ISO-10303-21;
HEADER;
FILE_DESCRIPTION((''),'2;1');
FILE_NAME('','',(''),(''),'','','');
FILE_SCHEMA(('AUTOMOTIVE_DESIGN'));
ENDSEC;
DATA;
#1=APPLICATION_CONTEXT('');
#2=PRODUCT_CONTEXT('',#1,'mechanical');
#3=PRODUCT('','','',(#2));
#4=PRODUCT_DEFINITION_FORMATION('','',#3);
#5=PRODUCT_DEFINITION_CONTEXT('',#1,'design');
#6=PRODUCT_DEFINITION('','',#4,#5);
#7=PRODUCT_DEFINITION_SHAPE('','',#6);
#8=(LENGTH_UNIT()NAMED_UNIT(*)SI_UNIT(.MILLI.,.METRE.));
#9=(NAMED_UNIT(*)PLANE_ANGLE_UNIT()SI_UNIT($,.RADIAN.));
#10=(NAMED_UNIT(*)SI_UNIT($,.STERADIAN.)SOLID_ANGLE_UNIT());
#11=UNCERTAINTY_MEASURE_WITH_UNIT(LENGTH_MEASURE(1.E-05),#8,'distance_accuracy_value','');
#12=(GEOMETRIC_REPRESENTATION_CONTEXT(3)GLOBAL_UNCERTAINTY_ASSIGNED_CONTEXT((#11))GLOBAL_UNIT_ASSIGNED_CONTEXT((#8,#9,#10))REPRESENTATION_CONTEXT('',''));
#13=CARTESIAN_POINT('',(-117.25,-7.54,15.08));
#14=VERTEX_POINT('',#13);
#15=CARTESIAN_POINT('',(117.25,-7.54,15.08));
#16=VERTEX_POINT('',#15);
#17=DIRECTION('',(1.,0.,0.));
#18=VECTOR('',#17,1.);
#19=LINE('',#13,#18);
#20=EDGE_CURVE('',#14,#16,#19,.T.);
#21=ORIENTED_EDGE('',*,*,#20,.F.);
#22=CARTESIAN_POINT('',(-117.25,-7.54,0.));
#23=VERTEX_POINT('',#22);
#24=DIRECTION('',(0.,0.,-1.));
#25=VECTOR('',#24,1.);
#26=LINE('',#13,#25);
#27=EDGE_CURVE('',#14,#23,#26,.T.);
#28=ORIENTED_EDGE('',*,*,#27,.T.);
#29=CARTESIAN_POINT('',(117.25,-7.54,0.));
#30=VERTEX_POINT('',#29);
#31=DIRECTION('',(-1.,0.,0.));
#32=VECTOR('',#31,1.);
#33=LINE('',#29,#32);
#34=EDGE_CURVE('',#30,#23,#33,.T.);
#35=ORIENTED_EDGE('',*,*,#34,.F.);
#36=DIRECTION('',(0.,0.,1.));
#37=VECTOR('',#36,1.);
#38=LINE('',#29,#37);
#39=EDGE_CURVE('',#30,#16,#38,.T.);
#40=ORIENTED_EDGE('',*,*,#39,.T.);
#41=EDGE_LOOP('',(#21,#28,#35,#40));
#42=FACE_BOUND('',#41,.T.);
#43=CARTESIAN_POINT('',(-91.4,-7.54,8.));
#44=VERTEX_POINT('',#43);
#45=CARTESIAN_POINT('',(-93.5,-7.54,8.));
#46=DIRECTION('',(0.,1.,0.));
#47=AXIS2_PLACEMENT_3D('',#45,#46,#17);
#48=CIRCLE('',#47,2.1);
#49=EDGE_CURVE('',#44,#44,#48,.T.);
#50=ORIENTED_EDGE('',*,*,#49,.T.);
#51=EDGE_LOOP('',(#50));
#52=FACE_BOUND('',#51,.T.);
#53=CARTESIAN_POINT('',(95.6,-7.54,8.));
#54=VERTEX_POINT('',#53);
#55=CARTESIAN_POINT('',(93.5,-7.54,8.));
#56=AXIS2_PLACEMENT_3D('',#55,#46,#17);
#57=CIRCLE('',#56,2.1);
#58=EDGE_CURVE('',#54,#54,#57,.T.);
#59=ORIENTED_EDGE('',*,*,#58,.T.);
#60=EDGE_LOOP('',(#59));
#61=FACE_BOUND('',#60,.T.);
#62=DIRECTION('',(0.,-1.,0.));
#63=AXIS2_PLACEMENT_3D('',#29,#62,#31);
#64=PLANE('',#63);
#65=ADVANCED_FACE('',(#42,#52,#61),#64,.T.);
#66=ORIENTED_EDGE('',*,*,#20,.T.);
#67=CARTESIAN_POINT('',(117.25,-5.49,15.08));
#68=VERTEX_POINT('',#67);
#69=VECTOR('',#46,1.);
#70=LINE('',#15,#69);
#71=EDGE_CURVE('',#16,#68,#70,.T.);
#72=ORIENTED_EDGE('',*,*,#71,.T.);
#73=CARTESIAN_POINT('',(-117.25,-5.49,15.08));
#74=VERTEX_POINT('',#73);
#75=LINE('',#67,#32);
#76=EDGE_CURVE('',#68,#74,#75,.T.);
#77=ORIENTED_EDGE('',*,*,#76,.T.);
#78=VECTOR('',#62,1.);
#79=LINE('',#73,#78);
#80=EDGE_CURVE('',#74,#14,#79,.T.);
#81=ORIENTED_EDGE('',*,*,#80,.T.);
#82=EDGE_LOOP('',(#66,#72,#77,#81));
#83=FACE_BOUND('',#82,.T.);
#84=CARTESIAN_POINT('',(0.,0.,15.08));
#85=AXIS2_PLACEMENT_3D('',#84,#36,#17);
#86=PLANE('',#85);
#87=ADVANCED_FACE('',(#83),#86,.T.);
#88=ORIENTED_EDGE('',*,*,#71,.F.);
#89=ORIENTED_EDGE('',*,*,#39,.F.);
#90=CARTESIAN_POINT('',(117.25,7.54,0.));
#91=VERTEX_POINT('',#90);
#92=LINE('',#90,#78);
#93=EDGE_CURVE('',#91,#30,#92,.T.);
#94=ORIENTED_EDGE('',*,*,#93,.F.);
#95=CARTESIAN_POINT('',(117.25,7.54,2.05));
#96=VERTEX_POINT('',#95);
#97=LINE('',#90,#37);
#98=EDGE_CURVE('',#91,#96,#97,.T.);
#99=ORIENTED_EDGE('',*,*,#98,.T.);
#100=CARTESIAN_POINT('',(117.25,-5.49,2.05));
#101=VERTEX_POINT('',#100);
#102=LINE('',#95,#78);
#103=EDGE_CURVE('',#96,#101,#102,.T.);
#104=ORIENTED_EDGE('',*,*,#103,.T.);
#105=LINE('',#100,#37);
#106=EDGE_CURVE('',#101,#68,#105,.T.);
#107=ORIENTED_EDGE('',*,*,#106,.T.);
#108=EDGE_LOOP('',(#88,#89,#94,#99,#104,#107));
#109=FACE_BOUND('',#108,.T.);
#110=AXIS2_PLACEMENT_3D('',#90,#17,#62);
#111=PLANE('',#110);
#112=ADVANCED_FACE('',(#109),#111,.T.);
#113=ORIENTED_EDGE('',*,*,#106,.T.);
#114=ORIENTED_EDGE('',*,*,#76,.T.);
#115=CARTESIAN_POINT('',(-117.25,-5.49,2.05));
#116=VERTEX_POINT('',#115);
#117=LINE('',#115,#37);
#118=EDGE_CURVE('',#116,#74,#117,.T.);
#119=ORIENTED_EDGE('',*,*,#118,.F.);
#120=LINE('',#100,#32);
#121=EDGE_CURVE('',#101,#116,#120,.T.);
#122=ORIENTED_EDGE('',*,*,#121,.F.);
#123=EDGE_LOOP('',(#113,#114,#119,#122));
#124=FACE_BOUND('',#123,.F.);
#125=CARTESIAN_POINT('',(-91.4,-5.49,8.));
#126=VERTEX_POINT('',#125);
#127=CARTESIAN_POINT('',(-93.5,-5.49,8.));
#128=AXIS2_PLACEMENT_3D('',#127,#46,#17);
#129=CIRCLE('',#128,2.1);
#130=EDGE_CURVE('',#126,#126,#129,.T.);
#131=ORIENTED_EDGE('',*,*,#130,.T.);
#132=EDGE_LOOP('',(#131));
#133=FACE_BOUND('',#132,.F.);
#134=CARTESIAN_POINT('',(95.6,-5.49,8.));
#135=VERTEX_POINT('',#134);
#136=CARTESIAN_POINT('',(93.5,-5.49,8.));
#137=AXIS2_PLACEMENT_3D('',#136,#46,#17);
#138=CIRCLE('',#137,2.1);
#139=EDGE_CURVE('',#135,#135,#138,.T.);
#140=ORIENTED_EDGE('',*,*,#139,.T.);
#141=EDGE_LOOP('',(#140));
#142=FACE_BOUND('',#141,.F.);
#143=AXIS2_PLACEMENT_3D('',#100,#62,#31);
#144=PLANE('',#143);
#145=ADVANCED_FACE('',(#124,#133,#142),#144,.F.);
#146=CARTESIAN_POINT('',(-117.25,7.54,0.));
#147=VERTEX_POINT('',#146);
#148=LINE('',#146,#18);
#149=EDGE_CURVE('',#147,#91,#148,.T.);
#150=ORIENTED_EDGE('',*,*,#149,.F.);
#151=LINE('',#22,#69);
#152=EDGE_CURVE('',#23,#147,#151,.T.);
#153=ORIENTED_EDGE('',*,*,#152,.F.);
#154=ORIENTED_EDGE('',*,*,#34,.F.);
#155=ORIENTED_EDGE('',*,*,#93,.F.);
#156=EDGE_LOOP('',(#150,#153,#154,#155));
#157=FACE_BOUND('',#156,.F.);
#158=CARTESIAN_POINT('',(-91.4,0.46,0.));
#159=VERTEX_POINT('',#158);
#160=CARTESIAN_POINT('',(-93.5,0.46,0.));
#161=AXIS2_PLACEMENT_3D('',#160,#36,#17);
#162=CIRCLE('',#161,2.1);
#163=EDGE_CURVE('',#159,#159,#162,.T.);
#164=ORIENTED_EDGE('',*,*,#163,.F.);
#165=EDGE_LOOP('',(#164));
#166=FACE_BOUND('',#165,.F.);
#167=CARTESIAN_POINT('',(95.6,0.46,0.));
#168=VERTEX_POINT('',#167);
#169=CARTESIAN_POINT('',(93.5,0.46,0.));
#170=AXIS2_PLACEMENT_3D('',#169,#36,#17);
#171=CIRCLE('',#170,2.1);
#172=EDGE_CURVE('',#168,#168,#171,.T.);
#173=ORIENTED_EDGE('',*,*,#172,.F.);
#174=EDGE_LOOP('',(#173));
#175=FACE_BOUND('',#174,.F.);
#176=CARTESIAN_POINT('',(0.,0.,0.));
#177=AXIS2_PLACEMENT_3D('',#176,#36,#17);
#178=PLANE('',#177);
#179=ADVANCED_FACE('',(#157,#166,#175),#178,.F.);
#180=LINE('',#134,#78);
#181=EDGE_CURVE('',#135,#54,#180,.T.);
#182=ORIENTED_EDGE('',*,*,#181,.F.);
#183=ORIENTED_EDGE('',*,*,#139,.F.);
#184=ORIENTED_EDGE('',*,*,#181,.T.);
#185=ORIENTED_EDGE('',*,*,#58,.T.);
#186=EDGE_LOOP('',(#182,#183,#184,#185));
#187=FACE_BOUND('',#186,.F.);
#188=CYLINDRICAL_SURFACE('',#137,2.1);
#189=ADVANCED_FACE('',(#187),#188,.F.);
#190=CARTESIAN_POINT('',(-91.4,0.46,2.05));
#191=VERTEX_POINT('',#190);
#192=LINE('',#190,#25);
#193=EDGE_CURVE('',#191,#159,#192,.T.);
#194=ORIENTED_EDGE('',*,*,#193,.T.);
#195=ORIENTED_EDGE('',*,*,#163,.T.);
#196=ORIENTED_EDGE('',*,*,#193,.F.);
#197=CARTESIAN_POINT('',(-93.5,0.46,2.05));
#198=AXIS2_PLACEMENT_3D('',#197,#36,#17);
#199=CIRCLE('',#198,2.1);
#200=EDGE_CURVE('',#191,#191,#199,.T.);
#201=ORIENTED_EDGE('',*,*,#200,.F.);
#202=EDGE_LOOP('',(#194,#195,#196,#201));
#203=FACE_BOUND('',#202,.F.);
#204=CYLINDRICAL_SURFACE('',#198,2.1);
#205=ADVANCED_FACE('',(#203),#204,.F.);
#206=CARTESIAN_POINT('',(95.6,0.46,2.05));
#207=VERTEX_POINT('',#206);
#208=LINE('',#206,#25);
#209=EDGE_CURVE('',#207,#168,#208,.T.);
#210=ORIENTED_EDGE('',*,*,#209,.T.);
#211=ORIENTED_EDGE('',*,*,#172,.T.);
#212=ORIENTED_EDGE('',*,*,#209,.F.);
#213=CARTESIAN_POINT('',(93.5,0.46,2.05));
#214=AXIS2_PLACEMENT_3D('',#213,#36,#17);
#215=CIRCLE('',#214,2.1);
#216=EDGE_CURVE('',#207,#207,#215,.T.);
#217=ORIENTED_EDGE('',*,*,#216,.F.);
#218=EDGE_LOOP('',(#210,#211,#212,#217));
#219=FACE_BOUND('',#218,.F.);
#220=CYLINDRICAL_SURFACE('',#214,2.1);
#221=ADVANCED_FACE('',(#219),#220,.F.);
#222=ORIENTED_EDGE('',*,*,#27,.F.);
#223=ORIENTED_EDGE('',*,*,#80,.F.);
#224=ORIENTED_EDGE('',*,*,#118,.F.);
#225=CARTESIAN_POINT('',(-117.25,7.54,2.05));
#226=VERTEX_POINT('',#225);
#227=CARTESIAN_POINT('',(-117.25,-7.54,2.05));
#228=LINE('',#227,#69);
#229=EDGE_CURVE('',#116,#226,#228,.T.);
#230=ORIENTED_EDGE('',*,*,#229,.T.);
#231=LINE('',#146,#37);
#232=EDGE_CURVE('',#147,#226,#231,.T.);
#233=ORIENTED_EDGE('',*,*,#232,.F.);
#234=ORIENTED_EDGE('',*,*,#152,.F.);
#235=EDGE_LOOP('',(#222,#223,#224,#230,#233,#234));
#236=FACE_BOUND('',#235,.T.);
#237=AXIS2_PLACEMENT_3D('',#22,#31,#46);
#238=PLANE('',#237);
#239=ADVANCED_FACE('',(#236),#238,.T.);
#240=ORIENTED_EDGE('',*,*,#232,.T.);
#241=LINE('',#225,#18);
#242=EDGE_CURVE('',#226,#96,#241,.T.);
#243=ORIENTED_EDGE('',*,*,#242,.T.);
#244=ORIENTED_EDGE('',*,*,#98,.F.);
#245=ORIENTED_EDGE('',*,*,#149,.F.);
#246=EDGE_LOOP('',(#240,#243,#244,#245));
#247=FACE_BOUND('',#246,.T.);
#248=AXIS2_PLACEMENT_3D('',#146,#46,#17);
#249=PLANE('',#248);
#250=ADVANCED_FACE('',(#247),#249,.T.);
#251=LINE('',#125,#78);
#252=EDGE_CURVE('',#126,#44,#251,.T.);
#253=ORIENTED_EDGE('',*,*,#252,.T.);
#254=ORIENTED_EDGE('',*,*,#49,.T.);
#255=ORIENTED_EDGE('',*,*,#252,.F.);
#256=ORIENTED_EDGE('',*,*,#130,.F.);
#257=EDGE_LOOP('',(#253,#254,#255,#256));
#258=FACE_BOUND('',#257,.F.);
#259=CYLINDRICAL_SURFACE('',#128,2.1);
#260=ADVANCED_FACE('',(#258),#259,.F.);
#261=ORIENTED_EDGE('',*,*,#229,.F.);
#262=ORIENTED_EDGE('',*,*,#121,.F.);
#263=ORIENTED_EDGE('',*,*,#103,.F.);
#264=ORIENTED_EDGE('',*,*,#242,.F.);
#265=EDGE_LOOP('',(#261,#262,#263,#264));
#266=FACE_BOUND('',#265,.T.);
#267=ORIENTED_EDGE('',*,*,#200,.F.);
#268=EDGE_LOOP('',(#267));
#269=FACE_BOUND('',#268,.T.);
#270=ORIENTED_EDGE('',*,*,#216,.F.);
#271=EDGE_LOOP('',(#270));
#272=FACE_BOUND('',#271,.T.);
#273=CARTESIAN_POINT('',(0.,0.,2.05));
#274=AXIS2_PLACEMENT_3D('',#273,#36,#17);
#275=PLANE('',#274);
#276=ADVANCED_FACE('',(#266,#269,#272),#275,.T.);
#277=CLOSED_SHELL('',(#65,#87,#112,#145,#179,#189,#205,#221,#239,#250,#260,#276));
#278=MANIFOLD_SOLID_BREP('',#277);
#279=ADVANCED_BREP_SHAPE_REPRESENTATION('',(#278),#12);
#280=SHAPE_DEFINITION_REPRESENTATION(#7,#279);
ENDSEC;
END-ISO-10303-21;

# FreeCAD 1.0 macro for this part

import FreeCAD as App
import Part
import Sketcher
from FreeCAD import Vector

doc = App.newDocument("Part")
body = doc.addObject("PartDesign::Body", "Body")

sketch1 = body.newObject("Sketcher::SketchObject", "Sketch")
sketch1.AttachmentSupport = (doc.getObject("XY_Plane"), [""])
sketch1.MapMode = "FlatFace"
sketch1.addGeometry(Part.LineSegment(Vector(-117, -8, 0), Vector(117, -8, 0)), False)
sketch1.addGeometry(Part.LineSegment(Vector(117, -8, 0), Vector(117, 8, 0)), False)
sketch1.addGeometry(Part.LineSegment(Vector(117, 8, 0), Vector(-117, 8, 0)), False)
sketch1.addGeometry(Part.LineSegment(Vector(-117, 8, 0), Vector(-117, -8, 0)), False)
sketch1.addConstraint(Sketcher.Constraint("Coincident", 0, 2, 1, 1))
sketch1.addConstraint(Sketcher.Constraint("Coincident", 1, 2, 2, 1))
sketch1.addConstraint(Sketcher.Constraint("Coincident", 2, 2, 3, 1))
sketch1.addConstraint(Sketcher.Constraint("Coincident", 3, 2, 0, 1))
sketch1.addConstraint(Sketcher.Constraint("Horizontal", 0))
sketch1.addConstraint(Sketcher.Constraint("Vertical", 1))
sketch1.addConstraint(Sketcher.Constraint("Horizontal", 2))
sketch1.addConstraint(Sketcher.Constraint("Vertical", 3))
sketch1.addConstraint(Sketcher.Constraint("Symmetric", 0, 2, 2, 2, -1, 1))
sketch1.addConstraint(Sketcher.Constraint("DistanceX", 0, 1, 0, 2, 234.5))
sketch1.addConstraint(Sketcher.Constraint("DistanceY", 1, 1, 1, 2, 15.08))
pad1 = body.newObject("PartDesign::Pad", "Pad")
pad1.Profile = sketch1
pad1.Length = 2.05

sketch2 = body.newObject("Sketcher::SketchObject", "Sketch001")
sketch2.AttachmentSupport = (doc.getObject("XY_Plane"), [""])
sketch2.MapMode = "FlatFace"
sketch2.AttachmentOffset = App.Placement(Vector(0, 0, 2.05), App.Rotation())
sketch2.addGeometry(Part.LineSegment(Vector(-117.2, -5.5, 0), Vector(-117.2, -7.5, 0)), False)
sketch2.addGeometry(Part.LineSegment(Vector(-117.2, -7.5, 0), Vector(117.2, -7.5, 0)), False)
sketch2.addGeometry(Part.LineSegment(Vector(117.2, -7.5, 0), Vector(117.2, -5.5, 0)), False)
sketch2.addGeometry(Part.LineSegment(Vector(117.2, -5.5, 0), Vector(-117.2, -5.5, 0)), False)
sketch2.addConstraint(Sketcher.Constraint("Coincident", 0, 2, 1, 1))
sketch2.addConstraint(Sketcher.Constraint("Coincident", 1, 2, 2, 1))
sketch2.addConstraint(Sketcher.Constraint("Coincident", 2, 2, 3, 1))
sketch2.addConstraint(Sketcher.Constraint("Coincident", 3, 2, 0, 1))
sketch2.addConstraint(Sketcher.Constraint("Vertical", 0))
sketch2.addConstraint(Sketcher.Constraint("Horizontal", 1))
sketch2.addConstraint(Sketcher.Constraint("Vertical", 2))
sketch2.addConstraint(Sketcher.Constraint("Horizontal", 3))
sketch2.addConstraint(Sketcher.Constraint("DistanceY", 0, 2, 0, 1, 2.05))
sketch2.addConstraint(Sketcher.Constraint("DistanceX", 1, 1, 1, 2, 234.5))
sketch2.addConstraint(Sketcher.Constraint("DistanceX", 0, 2, -1, 1, 117.25))
sketch2.addConstraint(Sketcher.Constraint("DistanceY", 0, 2, -1, 1, 7.54))
pad2 = body.newObject("PartDesign::Pad", "Pad001")
pad2.Profile = sketch2
pad2.Length = 13.03

sketch3 = body.newObject("Sketcher::SketchObject", "Sketch002")
sketch3.AttachmentSupport = (doc.getObject("XZ_Plane"), [""])
sketch3.MapMode = "FlatFace"
sketch3.AttachmentOffset = App.Placement(Vector(0, 0, 5.49), App.Rotation())
sketch3.addGeometry(Part.Circle(Vector(-93.5, 8, 0), Vector(0, 0, 1), 2.1), False)
sketch3.addGeometry(Part.Circle(Vector(93.5, 8, 0), Vector(0, 0, 1), 2.1), False)
sketch3.addConstraint(Sketcher.Constraint("Equal", 0, 1))
sketch3.addConstraint(Sketcher.Constraint("Symmetric", 0, 3, 1, 3, -2))
sketch3.addConstraint(Sketcher.Constraint("Diameter", 0, 4.2))
sketch3.addConstraint(Sketcher.Constraint("DistanceY", -1, 1, 0, 3, 8.0))
sketch3.addConstraint(Sketcher.Constraint("DistanceX", 0, 3, -1, 1, 93.5))
pocket1 = body.newObject("PartDesign::Pocket", "Pocket")
pocket1.Profile = sketch3
pocket1.Length = 2.05
pocket1.Reversed = True

sketch4 = body.newObject("Sketcher::SketchObject", "Sketch003")
sketch4.AttachmentSupport = (doc.getObject("XY_Plane"), [""])
sketch4.MapMode = "FlatFace"
sketch4.AttachmentOffset = App.Placement(Vector(0, 0, 2.05), App.Rotation())
sketch4.addGeometry(Part.Circle(Vector(-93.5, 0.5, 0), Vector(0, 0, 1), 2.1), False)
sketch4.addGeometry(Part.Circle(Vector(93.5, 0.5, 0), Vector(0, 0, 1), 2.1), False)
sketch4.addConstraint(Sketcher.Constraint("Equal", 0, 1))
sketch4.addConstraint(Sketcher.Constraint("Symmetric", 0, 3, 1, 3, -2))
sketch4.addConstraint(Sketcher.Constraint("Diameter", 0, 4.2))
sketch4.addConstraint(Sketcher.Constraint("DistanceX", 0, 3, -1, 1, 93.5))
sketch4.addConstraint(Sketcher.Constraint("DistanceY", -1, 1, 0, 3, 0.46))
pocket2 = body.newObject("PartDesign::Pocket", "Pocket001")
pocket2.Profile = sketch4
pocket2.Length = 2.05

doc.recompute()
